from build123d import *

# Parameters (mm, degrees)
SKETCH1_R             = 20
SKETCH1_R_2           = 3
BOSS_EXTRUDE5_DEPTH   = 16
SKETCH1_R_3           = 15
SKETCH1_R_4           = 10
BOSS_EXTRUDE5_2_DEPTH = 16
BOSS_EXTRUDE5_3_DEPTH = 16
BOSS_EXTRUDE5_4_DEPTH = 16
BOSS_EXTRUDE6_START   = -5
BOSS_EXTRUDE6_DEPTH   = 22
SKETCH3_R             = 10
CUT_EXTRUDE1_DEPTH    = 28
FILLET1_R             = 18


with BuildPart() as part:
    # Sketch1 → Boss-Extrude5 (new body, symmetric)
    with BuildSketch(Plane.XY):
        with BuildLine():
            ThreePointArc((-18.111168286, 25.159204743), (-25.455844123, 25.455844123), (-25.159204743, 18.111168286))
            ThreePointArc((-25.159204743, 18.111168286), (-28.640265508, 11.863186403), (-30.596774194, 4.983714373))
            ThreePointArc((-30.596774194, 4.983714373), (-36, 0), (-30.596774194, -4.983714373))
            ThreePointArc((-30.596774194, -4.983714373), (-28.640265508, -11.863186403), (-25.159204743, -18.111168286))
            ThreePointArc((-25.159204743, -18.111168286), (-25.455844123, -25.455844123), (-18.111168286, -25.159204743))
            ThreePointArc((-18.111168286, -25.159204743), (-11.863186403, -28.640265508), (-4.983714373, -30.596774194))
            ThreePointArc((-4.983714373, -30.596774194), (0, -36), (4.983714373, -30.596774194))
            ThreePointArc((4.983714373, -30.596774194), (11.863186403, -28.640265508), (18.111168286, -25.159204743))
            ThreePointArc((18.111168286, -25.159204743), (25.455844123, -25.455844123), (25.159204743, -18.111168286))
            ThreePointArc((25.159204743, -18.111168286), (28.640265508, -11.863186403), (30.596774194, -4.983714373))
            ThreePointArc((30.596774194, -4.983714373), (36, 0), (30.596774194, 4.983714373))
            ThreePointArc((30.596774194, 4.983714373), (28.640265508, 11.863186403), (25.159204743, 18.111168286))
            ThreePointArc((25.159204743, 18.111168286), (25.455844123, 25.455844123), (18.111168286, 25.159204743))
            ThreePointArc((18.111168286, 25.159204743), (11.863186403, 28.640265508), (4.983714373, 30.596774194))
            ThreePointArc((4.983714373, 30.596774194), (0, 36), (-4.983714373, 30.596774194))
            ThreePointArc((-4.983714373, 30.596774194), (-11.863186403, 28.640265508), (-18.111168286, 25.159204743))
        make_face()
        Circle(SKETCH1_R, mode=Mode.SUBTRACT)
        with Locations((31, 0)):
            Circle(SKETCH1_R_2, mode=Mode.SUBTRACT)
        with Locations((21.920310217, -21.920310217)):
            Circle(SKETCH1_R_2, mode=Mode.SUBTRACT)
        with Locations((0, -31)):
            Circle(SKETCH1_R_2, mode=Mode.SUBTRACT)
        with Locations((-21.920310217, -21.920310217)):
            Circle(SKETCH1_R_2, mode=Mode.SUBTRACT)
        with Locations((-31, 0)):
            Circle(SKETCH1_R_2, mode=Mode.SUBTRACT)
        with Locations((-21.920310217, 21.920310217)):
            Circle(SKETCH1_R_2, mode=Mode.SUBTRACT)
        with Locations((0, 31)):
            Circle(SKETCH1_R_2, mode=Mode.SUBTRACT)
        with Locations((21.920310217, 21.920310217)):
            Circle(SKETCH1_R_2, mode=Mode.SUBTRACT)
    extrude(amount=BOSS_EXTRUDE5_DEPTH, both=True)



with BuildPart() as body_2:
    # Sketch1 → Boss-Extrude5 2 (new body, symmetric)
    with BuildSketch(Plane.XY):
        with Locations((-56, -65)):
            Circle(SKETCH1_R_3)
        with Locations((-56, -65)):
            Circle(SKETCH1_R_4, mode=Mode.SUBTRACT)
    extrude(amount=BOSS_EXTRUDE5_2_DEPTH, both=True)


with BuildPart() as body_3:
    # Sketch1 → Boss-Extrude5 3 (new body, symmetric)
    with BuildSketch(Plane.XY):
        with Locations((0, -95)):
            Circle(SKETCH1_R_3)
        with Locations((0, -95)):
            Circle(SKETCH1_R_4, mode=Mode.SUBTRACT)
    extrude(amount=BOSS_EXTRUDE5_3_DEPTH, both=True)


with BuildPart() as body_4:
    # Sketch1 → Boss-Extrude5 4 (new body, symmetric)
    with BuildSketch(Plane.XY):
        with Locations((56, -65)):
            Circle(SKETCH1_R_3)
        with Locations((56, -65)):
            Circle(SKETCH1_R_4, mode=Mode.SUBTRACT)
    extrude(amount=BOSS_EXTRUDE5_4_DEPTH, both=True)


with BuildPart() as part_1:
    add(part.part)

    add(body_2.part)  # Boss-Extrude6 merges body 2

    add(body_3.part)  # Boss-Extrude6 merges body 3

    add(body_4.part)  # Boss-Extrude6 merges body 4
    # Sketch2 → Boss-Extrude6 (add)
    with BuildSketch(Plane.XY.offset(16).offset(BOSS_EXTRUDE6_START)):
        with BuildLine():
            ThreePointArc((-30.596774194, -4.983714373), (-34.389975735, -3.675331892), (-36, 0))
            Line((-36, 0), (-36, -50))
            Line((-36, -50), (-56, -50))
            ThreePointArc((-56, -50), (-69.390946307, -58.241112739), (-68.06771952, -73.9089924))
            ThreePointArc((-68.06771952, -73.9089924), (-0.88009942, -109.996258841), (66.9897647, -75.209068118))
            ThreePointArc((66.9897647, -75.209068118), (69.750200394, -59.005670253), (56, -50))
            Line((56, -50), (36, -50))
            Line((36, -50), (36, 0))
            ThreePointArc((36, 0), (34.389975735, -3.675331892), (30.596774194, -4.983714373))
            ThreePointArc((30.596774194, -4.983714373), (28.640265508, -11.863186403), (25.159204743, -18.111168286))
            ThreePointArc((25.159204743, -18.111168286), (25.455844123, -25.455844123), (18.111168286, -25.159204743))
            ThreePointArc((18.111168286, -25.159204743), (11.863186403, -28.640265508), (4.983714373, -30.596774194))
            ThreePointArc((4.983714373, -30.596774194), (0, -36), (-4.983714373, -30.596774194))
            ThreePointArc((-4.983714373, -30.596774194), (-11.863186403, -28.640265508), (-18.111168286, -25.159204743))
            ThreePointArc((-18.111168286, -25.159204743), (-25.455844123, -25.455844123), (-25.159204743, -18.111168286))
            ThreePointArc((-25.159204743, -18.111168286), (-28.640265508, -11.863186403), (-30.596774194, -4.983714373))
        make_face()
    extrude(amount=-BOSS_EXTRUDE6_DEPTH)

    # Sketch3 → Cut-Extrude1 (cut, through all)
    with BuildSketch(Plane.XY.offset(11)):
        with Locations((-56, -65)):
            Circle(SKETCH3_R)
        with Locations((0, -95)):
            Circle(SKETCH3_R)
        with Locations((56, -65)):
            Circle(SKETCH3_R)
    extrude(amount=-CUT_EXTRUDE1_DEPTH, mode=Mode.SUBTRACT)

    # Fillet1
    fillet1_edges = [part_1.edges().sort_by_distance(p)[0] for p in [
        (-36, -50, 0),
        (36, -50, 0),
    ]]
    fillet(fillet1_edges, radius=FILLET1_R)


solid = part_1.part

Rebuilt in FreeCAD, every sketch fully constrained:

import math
import FreeCAD as App
import Part
import Sketcher
from FreeCAD import Vector


def edges_at(feature, points):
    """Names of the edges that pass closest to the given points."""
    edges = feature.Shape.Edges
    near = lambda p: min(range(len(edges)), key=lambda i: edges[i].distToShape(Part.Vertex(*p))[0])
    return sorted({f"Edge{near(p) + 1}" for p in points})

doc = App.newDocument("Part")
body = doc.addObject("PartDesign::Body", "Body")

# Sketch on XY plane
sketch1 = doc.addObject("Sketcher::SketchObject", "Sketch")
body.addObject(sketch1)
sketch1.AttachmentSupport = (doc.XY_Plane, [""])
sketch1.MapMode = "FlatFace"
sketch1.addGeometry([
    Part.ArcOfCircle(Part.Circle(Vector(-21.92031, 21.92031, 0), Vector(0, 0, 1), 5), math.radians(40.374349), math.radians(229.625651)),  # 0
    Part.ArcOfCircle(Part.Circle(Vector(0, 0, 0), Vector(0, 0, 1), 31), math.radians(144.251301), math.radians(170.748699)),  # 1
    Part.ArcOfCircle(Part.Circle(Vector(-31, 0, 0), Vector(0, 0, 1), 5), math.radians(85.374349), math.radians(274.625651)),  # 2
    Part.ArcOfCircle(Part.Circle(Vector(0, 0, 0), Vector(0, 0, 1), 31), math.radians(-170.748699), math.radians(-144.251301)),  # 3
    Part.ArcOfCircle(Part.Circle(Vector(-21.92031, -21.92031, 0), Vector(0, 0, 1), 5), math.radians(130.374349), math.radians(319.625651)),  # 4
    Part.ArcOfCircle(Part.Circle(Vector(0, 0, 0), Vector(0, 0, 1), 31), math.radians(-125.748699), math.radians(-99.251301)),  # 5
    Part.ArcOfCircle(Part.Circle(Vector(0, -31, 0), Vector(0, 0, 1), 5), math.radians(175.374349), math.radians(364.625651)),  # 6
    Part.ArcOfCircle(Part.Circle(Vector(0, 0, 0), Vector(0, 0, 1), 31), math.radians(-80.748699), math.radians(-54.251301)),  # 7
    Part.ArcOfCircle(Part.Circle(Vector(21.92031, -21.92031, 0), Vector(0, 0, 1), 5), math.radians(-139.625651), math.radians(49.625651)),  # 8
    Part.ArcOfCircle(Part.Circle(Vector(0, 0, 0), Vector(0, 0, 1), 31), math.radians(-35.748699), math.radians(-9.251301)),  # 9
    Part.ArcOfCircle(Part.Circle(Vector(31, 0, 0), Vector(0, 0, 1), 5), math.radians(-94.625651), math.radians(94.625651)),  # 10
    Part.ArcOfCircle(Part.Circle(Vector(0, 0, 0), Vector(0, 0, 1), 31), math.radians(9.251301), math.radians(35.748699)),  # 11
    Part.ArcOfCircle(Part.Circle(Vector(21.92031, 21.92031, 0), Vector(0, 0, 1), 5), math.radians(-49.625651), math.radians(139.625651)),  # 12
    Part.ArcOfCircle(Part.Circle(Vector(0, 0, 0), Vector(0, 0, 1), 31), math.radians(54.251301), math.radians(80.748699)),  # 13
    Part.ArcOfCircle(Part.Circle(Vector(0, 31, 0), Vector(0, 0, 1), 5), math.radians(-4.625651), math.radians(184.625651)),  # 14
    Part.ArcOfCircle(Part.Circle(Vector(0, 0, 0), Vector(0, 0, 1), 31), math.radians(99.251301), math.radians(125.748699)),  # 15
    Part.Circle(Vector(-21.92031, -21.92031, 0), Vector(0, 0, 1), 3),  # 16
    Part.Circle(Vector(0, -31, 0), Vector(0, 0, 1), 3),  # 17
    Part.Circle(Vector(21.92031, -21.92031, 0), Vector(0, 0, 1), 3),  # 18
    Part.Circle(Vector(-31, 0, 0), Vector(0, 0, 1), 3),  # 19
    Part.Circle(Vector(-21.92031, 21.92031, 0), Vector(0, 0, 1), 3),  # 20
    Part.Circle(Vector(0, 31, 0), Vector(0, 0, 1), 3),  # 21
    Part.Circle(Vector(0, 0, 0), Vector(0, 0, 1), 20),  # 22
    Part.Circle(Vector(31, 0, 0), Vector(0, 0, 1), 3),  # 23
    Part.Circle(Vector(21.92031, 21.92031, 0), Vector(0, 0, 1), 3),  # 24
], False)
sketch1.addConstraint([
    Sketcher.Constraint("Coincident", 0, 2, 1, 1),
    Sketcher.Constraint("Coincident", 1, 2, 2, 1),
    Sketcher.Constraint("Coincident", 2, 2, 3, 1),
    Sketcher.Constraint("Coincident", 3, 2, 4, 1),
    Sketcher.Constraint("Coincident", 4, 2, 5, 1),
    Sketcher.Constraint("Coincident", 5, 2, 6, 1),
    Sketcher.Constraint("Coincident", 6, 2, 7, 1),
    Sketcher.Constraint("Coincident", 7, 2, 8, 1),
    Sketcher.Constraint("Coincident", 8, 2, 9, 1),
    Sketcher.Constraint("Coincident", 9, 2, 10, 1),
    Sketcher.Constraint("Coincident", 10, 2, 11, 1),
    Sketcher.Constraint("Coincident", 11, 2, 12, 1),
    Sketcher.Constraint("Coincident", 12, 2, 13, 1),
    Sketcher.Constraint("Coincident", 13, 2, 14, 1),
    Sketcher.Constraint("Coincident", 14, 2, 15, 1),
    Sketcher.Constraint("Coincident", 15, 2, 0, 1),
    Sketcher.Constraint("Coincident", 1, 3, -1, 1),
    Sketcher.Constraint("Coincident", 3, 3, -1, 1),
    Sketcher.Constraint("Coincident", 5, 3, -1, 1),
    Sketcher.Constraint("Coincident", 7, 3, -1, 1),
    Sketcher.Constraint("Coincident", 9, 3, -1, 1),
    Sketcher.Constraint("Coincident", 11, 3, -1, 1),
    Sketcher.Constraint("Coincident", 13, 3, -1, 1),
    Sketcher.Constraint("Coincident", 15, 3, -1, 1),
    Sketcher.Constraint("Coincident", 22, 3, -1, 1),
    Sketcher.Constraint("Coincident", 16, 3, 4, 3),
    Sketcher.Constraint("Coincident", 17, 3, 6, 3),
    Sketcher.Constraint("Coincident", 18, 3, 8, 3),
    Sketcher.Constraint("Coincident", 19, 3, 2, 3),
    Sketcher.Constraint("Coincident", 20, 3, 0, 3),
    Sketcher.Constraint("Coincident", 21, 3, 14, 3),
    Sketcher.Constraint("Coincident", 23, 3, 10, 3),
    Sketcher.Constraint("Coincident", 24, 3, 12, 3),
    Sketcher.Constraint("Equal", 0, 2),
    Sketcher.Constraint("Equal", 1, 3),
    Sketcher.Constraint("Equal", 2, 4),
    Sketcher.Constraint("Equal", 3, 5),
    Sketcher.Constraint("Equal", 4, 6),
    Sketcher.Constraint("Equal", 5, 7),
    Sketcher.Constraint("Equal", 6, 8),
    Sketcher.Constraint("Equal", 7, 9),
    Sketcher.Constraint("Equal", 8, 10),
    Sketcher.Constraint("Equal", 9, 11),
    Sketcher.Constraint("Equal", 10, 12),
    Sketcher.Constraint("Equal", 11, 13),
    Sketcher.Constraint("Equal", 12, 14),
    Sketcher.Constraint("Equal", 13, 15),
    Sketcher.Constraint("Equal", 16, 17),
    Sketcher.Constraint("Equal", 17, 18),
    Sketcher.Constraint("Equal", 18, 19),
    Sketcher.Constraint("Equal", 19, 20),
    Sketcher.Constraint("Equal", 20, 21),
    Sketcher.Constraint("Equal", 21, 23),
    Sketcher.Constraint("Equal", 23, 24),
    Sketcher.Constraint("Symmetric", 0, 3, 8, 3, -1, 1),
    Sketcher.Constraint("Symmetric", 2, 3, 10, 3, -1, 1),
    Sketcher.Constraint("Symmetric", 4, 3, 12, 3, -1, 1),
    Sketcher.Constraint("Symmetric", 6, 3, 14, 3, -1, 1),
    Sketcher.Constraint("Symmetric", 4, 3, 8, 3, -2),
    Sketcher.Constraint("PointOnObject", 2, 3, -1),
    Sketcher.Constraint("PointOnObject", 6, 3, -2),
    Sketcher.Constraint("Diameter", 16, 6.0),
    Sketcher.Constraint("Diameter", 22, 40.0),
    Sketcher.Constraint("Radius", 0, 5.0),
    Sketcher.Constraint("Radius", 1, 31.0),
    Sketcher.Constraint("DistanceX", 2, 3, -1, 1, 31.0),
    Sketcher.Constraint("DistanceY", 6, 3, -1, 1, 31.0),
    Sketcher.Constraint("DistanceX", 0, 3, -1, 1, 21.92031),
    Sketcher.Constraint("DistanceY", -1, 1, 0, 3, 21.92031),
])
pad1 = doc.addObject("PartDesign::Pad", "Pad")
body.addObject(pad1)
pad1.Profile = sketch1
pad1.Length = 32
pad1.Midplane = True
body2 = doc.addObject("PartDesign::Body", "Body001")

# Sketch on XY plane
sketch2 = doc.addObject("Sketcher::SketchObject", "Sketch001")
body2.addObject(sketch2)
sketch2.AttachmentSupport = (doc.getObject("XY_Plane001"), [""])
sketch2.MapMode = "FlatFace"
sketch2.addGeometry([
    Part.Circle(Vector(-56, -65, 0), Vector(0, 0, 1), 15),
    Part.Circle(Vector(-56, -65, 0), Vector(0, 0, 1), 10),
], False)
sketch2.addConstraint([
    Sketcher.Constraint("Coincident", 1, 3, 0, 3),
    Sketcher.Constraint("Diameter", 0, 30.0),
    Sketcher.Constraint("Diameter", 1, 20.0),
    Sketcher.Constraint("DistanceX", 0, 3, -1, 1, 56.0),
    Sketcher.Constraint("DistanceY", 0, 3, -1, 1, 65.0),
])
pad2 = doc.addObject("PartDesign::Pad", "Pad001")
body2.addObject(pad2)
pad2.Profile = sketch2
pad2.Length = 32
pad2.Midplane = True
body3 = doc.addObject("PartDesign::Body", "Body002")

# Sketch on XY plane
sketch3 = doc.addObject("Sketcher::SketchObject", "Sketch002")
body3.addObject(sketch3)
sketch3.AttachmentSupport = (doc.getObject("XY_Plane002"), [""])
sketch3.MapMode = "FlatFace"
sketch3.addGeometry([
    Part.Circle(Vector(0, -95, 0), Vector(0, 0, 1), 15),
    Part.Circle(Vector(0, -95, 0), Vector(0, 0, 1), 10),
], False)
sketch3.addConstraint([
    Sketcher.Constraint("Coincident", 1, 3, 0, 3),
    Sketcher.Constraint("PointOnObject", 0, 3, -2),
    Sketcher.Constraint("Diameter", 0, 30.0),
    Sketcher.Constraint("Diameter", 1, 20.0),
    Sketcher.Constraint("DistanceY", 0, 3, -1, 1, 95.0),
])
pad3 = doc.addObject("PartDesign::Pad", "Pad002")
body3.addObject(pad3)
pad3.Profile = sketch3
pad3.Length = 32
pad3.Midplane = True
body4 = doc.addObject("PartDesign::Body", "Body003")

# Sketch on XY plane
sketch4 = doc.addObject("Sketcher::SketchObject", "Sketch003")
body4.addObject(sketch4)
sketch4.AttachmentSupport = (doc.getObject("XY_Plane003"), [""])
sketch4.MapMode = "FlatFace"
sketch4.addGeometry([
    Part.Circle(Vector(56, -65, 0), Vector(0, 0, 1), 15),
    Part.Circle(Vector(56, -65, 0), Vector(0, 0, 1), 10),
], False)
sketch4.addConstraint([
    Sketcher.Constraint("Coincident", 1, 3, 0, 3),
    Sketcher.Constraint("Diameter", 0, 30.0),
    Sketcher.Constraint("Diameter", 1, 20.0),
    Sketcher.Constraint("DistanceX", -1, 1, 0, 3, 56.0),
    Sketcher.Constraint("DistanceY", 0, 3, -1, 1, 65.0),
])
pad4 = doc.addObject("PartDesign::Pad", "Pad003")
body4.addObject(pad4)
pad4.Profile = sketch4
pad4.Length = 32
pad4.Midplane = True
body.AllowCompound = True
doc.recompute()

boolean = doc.addObject("PartDesign::Boolean", "Boolean")
body.addObject(boolean)
boolean.Type = "Fuse"
boolean.addObjects([body2])
doc.recompute()

boolean2 = doc.addObject("PartDesign::Boolean", "Boolean001")
body.addObject(boolean2)
boolean2.Type = "Fuse"
boolean2.addObjects([body3])
doc.recompute()

boolean3 = doc.addObject("PartDesign::Boolean", "Boolean002")
body.addObject(boolean3)
boolean3.Type = "Fuse"
boolean3.addObjects([body4])

# Sketch on XY plane
sketch5 = doc.addObject("Sketcher::SketchObject", "Sketch004")
body.addObject(sketch5)
sketch5.AttachmentSupport = (doc.XY_Plane, [""])
sketch5.MapMode = "FlatFace"
sketch5.AttachmentOffset = App.Placement(Vector(0, 0, 11), App.Rotation())
sketch5.addGeometry([
    Part.ArcOfCircle(Part.Circle(Vector(-31, 0, 0), Vector(0, 0, 1), 5), math.radians(180), math.radians(274.625651)),  # 0
    Part.LineSegment(Vector(-36, 0, 0), Vector(-36, -50, 0)),  # 1
    Part.LineSegment(Vector(-36, -50, 0), Vector(-56, -50, 0)),  # 2
    Part.ArcOfCircle(Part.Circle(Vector(-56, -65, 0), Vector(0, 0, 1), 15), math.radians(90), math.radians(216.436593)),  # 3
    Part.ArcOfCircle(Part.Circle(Vector(-0.090186, -27.936679, 0), Vector(0, 0, 1), 82.063382), math.radians(-145.930027), math.radians(-35.173008)),  # 4
    Part.ArcOfCircle(Part.Circle(Vector(56, -65, 0), Vector(0, 0, 1), 15), math.radians(-42.890902), math.radians(90)),  # 5
    Part.LineSegment(Vector(56, -50, 0), Vector(36, -50, 0)),  # 6
    Part.LineSegment(Vector(36, -50, 0), Vector(36, 0, 0)),  # 7
    Part.ArcOfCircle(Part.Circle(Vector(31, 0, 0), Vector(0, 0, 1), 5), math.radians(-94.625651), math.radians(0)),  # 8
    Part.ArcOfCircle(Part.Circle(Vector(0, 0, 0), Vector(0, 0, 1), 31), math.radians(-35.748699), math.radians(-9.251301)),  # 9
    Part.ArcOfCircle(Part.Circle(Vector(21.92031, -21.92031, 0), Vector(0, 0, 1), 5), math.radians(-139.625651), math.radians(49.625651)),  # 10
    Part.ArcOfCircle(Part.Circle(Vector(0, 0, 0), Vector(0, 0, 1), 31), math.radians(-80.748699), math.radians(-54.251301)),  # 11
    Part.ArcOfCircle(Part.Circle(Vector(0, -31, 0), Vector(0, 0, 1), 5), math.radians(175.374349), math.radians(364.625651)),  # 12
    Part.ArcOfCircle(Part.Circle(Vector(0, 0, 0), Vector(0, 0, 1), 31), math.radians(-125.748699), math.radians(-99.251301)),  # 13
    Part.ArcOfCircle(Part.Circle(Vector(-21.92031, -21.92031, 0), Vector(0, 0, 1), 5), math.radians(130.374349), math.radians(319.625651)),  # 14
    Part.ArcOfCircle(Part.Circle(Vector(0, 0, 0), Vector(0, 0, 1), 31), math.radians(-170.748699), math.radians(-144.251301)),  # 15
], False)
sketch5.addConstraint([
    Sketcher.Constraint("Tangent", 0, 1, 1, 1),
    Sketcher.Constraint("Coincident", 1, 2, 2, 1),
    Sketcher.Constraint("Tangent", 2, 2, 3, 1),
    Sketcher.Constraint("Coincident", 3, 2, 4, 1),
    Sketcher.Constraint("Coincident", 4, 2, 5, 1),
    Sketcher.Constraint("Tangent", 5, 2, 6, 1),
    Sketcher.Constraint("Coincident", 6, 2, 7, 1),
    Sketcher.Constraint("Tangent", 7, 2, 8, 2),
    Sketcher.Constraint("Coincident", 8, 1, 9, 2),
    Sketcher.Constraint("Coincident", 9, 1, 10, 2),
    Sketcher.Constraint("Coincident", 10, 1, 11, 2),
    Sketcher.Constraint("Coincident", 11, 1, 12, 2),
    Sketcher.Constraint("Coincident", 12, 1, 13, 2),
    Sketcher.Constraint("Coincident", 13, 1, 14, 2),
    Sketcher.Constraint("Coincident", 14, 1, 15, 2),
    Sketcher.Constraint("Coincident", 15, 1, 0, 2),
    Sketcher.Constraint("Vertical", 1),
    Sketcher.Constraint("Horizontal", 2),
    Sketcher.Constraint("Horizontal", 6),
    Sketcher.Constraint("Vertical", 7),
    Sketcher.Constraint("Coincident", 9, 3, -1, 1),
    Sketcher.Constraint("Coincident", 11, 3, -1, 1),
    Sketcher.Constraint("Coincident", 13, 3, -1, 1),
    Sketcher.Constraint("Coincident", 15, 3, -1, 1),
    Sketcher.Constraint("Equal", 3, 5),
    Sketcher.Constraint("Equal", 0, 8),
    Sketcher.Constraint("Equal", 8, 10),
    Sketcher.Constraint("Equal", 9, 11),
    Sketcher.Constraint("Equal", 10, 12),
    Sketcher.Constraint("Equal", 11, 13),
    Sketcher.Constraint("Equal", 12, 14),
    Sketcher.Constraint("Equal", 13, 15),
    Sketcher.Constraint("Symmetric", 0, 3, 8, 3, -1, 1),
    Sketcher.Constraint("Symmetric", 3, 3, 5, 3, -2),
    Sketcher.Constraint("Symmetric", 10, 3, 14, 3, -2),
    Sketcher.Constraint("PointOnObject", 0, 3, -1),
    Sketcher.Constraint("PointOnObject", 12, 3, -2),
    Sketcher.Constraint("Radius", 0, 5.0),
    Sketcher.Constraint("Radius", 3, 15.0),
    Sketcher.Constraint("Radius", 9, 31.0),
    Sketcher.Constraint("DistanceX", 2, 2, 2, 1, 20.0),
    Sketcher.Constraint("DistanceY", 1, 2, 1, 1, 50.0),
    Sketcher.Constraint("DistanceX", 0, 3, -1, 1, 31.0),
    Sketcher.Constraint("DistanceY", 12, 3, -1, 1, 31.0),
    Sketcher.Constraint("Radius", 4, 82.063382),
    Sketcher.Constraint("DistanceX", 4, 3, 11, 1, 5.073901),
    Sketcher.Constraint("DistanceY", 4, 3, -1, 1, 27.936679),
    Sketcher.Constraint("DistanceX", -1, 1, 10, 3, 21.92031),
    Sketcher.Constraint("DistanceY", 10, 3, -1, 1, 21.92031),
])
pad5 = doc.addObject("PartDesign::Pad", "Pad004")
body.addObject(pad5)
pad5.Profile = sketch5
pad5.Length = 22
pad5.Reversed = True

# Sketch on XY plane
sketch6 = doc.addObject("Sketcher::SketchObject", "Sketch005")
body.addObject(sketch6)
sketch6.AttachmentSupport = (doc.XY_Plane, [""])
sketch6.MapMode = "FlatFace"
sketch6.AttachmentOffset = App.Placement(Vector(0, 0, 11), App.Rotation())
sketch6.addGeometry([
    Part.Circle(Vector(-56, -65, 0), Vector(0, 0, 1), 10),
    Part.Circle(Vector(0, -95, 0), Vector(0, 0, 1), 10),
    Part.Circle(Vector(56, -65, 0), Vector(0, 0, 1), 10),
], False)
sketch6.addConstraint([
    Sketcher.Constraint("Equal", 0, 1),
    Sketcher.Constraint("Equal", 1, 2),
    Sketcher.Constraint("Symmetric", 0, 3, 2, 3, -2),
    Sketcher.Constraint("PointOnObject", 1, 3, -2),
    Sketcher.Constraint("Diameter", 0, 20.0),
    Sketcher.Constraint("DistanceX", 0, 3, -1, 1, 56.0),
    Sketcher.Constraint("DistanceY", 0, 3, -1, 1, 65.0),
    Sketcher.Constraint("DistanceY", 1, 3, -1, 1, 95.0),
])
pocket1 = doc.addObject("PartDesign::Pocket", "Pocket")
body.addObject(pocket1)
pocket1.Profile = sketch6
pocket1.Type = "ThroughAll"
doc.recompute()

fillet = doc.addObject("PartDesign::Fillet", "Fillet")
body.addObject(fillet)
fillet.Base = (pocket1, edges_at(pocket1, [(-36, -50, 0), (36, -50, 0)]))
fillet.Radius = 18

doc.recompute()
